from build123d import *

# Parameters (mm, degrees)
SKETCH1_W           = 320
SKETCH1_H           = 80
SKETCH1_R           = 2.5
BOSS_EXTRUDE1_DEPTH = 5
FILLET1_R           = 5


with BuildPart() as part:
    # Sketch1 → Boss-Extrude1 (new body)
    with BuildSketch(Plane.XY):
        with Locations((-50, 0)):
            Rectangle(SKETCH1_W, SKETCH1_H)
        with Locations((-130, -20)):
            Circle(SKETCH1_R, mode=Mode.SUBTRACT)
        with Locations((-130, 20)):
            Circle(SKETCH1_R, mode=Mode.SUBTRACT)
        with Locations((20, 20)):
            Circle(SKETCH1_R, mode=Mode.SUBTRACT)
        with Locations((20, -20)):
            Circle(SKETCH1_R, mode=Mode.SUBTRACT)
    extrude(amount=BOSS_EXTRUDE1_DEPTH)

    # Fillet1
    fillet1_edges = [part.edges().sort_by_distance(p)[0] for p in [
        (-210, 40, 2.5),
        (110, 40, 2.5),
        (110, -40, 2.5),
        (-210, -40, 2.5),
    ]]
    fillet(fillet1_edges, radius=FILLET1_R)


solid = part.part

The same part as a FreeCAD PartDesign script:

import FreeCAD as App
import Part
import Sketcher
from FreeCAD import Vector


def edges_at(feature, points):
    """Names of the edges that pass closest to the given points."""
    edges = feature.Shape.Edges
    near = lambda p: min(range(len(edges)), key=lambda i: edges[i].distToShape(Part.Vertex(*p))[0])
    return sorted({f"Edge{near(p) + 1}" for p in points})


def add_polygon(sketch, points):
    """Adds a closed chain of lines whose ends are joined by coincident constraints."""
    first, n = sketch.GeometryCount, len(points)
    for a, b in zip(points, points[1:] + points[:1]):
        sketch.addGeometry(Part.LineSegment(App.Vector(*a, 0), App.Vector(*b, 0)), False)
    for i in range(n):
        sketch.addConstraint(Sketcher.Constraint("Coincident", first + i, 2, first + (i + 1) % n, 1))

doc = App.newDocument("Part")
params = doc.addObject("Spreadsheet::Sheet", "Params")
for row, (alias, value) in enumerate([
    ("sketch1_diameter", "5 mm"),
    ("sketch1_width", "320 mm"),
    ("sketch1_height", "80 mm"),
    ("pad1_length", "5 mm"),
    ("fillet_radius", "5 mm"),
], start=1):
    params.set(f"A{row}", alias)
    params.set(f"B{row}", "=" + value)
    params.setAlias(f"B{row}", alias)

body = doc.addObject("PartDesign::Body", "Body")

sketch1 = doc.addObject("Sketcher::SketchObject", "Sketch")
body.addObject(sketch1)
sketch1.AttachmentSupport = (doc.XY_Plane, [""])
sketch1.MapMode = "FlatFace"
add_polygon(sketch1, [(-210, 40), (-210, -40), (110, -40), (110, 40)])
sketch1.addGeometry(Part.Circle(Vector(-130, -20, 0), Vector(0, 0, 1), 2.5), False)
sketch1.addGeometry(Part.Circle(Vector(20, -20, 0), Vector(0, 0, 1), 2.5), False)
sketch1.addGeometry(Part.Circle(Vector(-130, 20, 0), Vector(0, 0, 1), 2.5), False)
sketch1.addGeometry(Part.Circle(Vector(20, 20, 0), Vector(0, 0, 1), 2.5), False)
sketch1.addConstraint([
    Sketcher.Constraint("Vertical", 0),
    Sketcher.Constraint("Horizontal", 1),
    Sketcher.Constraint("Vertical", 2),
    Sketcher.Constraint("Horizontal", 3),
    Sketcher.Constraint("Equal", 4, 5),
    Sketcher.Constraint("Equal", 5, 6),
    Sketcher.Constraint("Equal", 6, 7),
    Sketcher.Constraint("Symmetric", 4, 3, 6, 3, -1),
    Sketcher.Constraint("Symmetric", 5, 3, 7, 3, -1),
    Sketcher.Constraint("Horizontal", 4, 3, 5, 3),
    Sketcher.Constraint("Diameter", 4, 5.0),
    Sketcher.Constraint("DistanceX", 1, 1, 1, 2, 320.0),
    Sketcher.Constraint("DistanceY", 0, 2, 0, 1, 80.0),
    Sketcher.Constraint("DistanceX", 4, 3, -1, 1, 130.0),
    Sketcher.Constraint("DistanceY", 4, 3, -1, 1, 20.0),
    Sketcher.Constraint("DistanceX", -1, 1, 5, 3, 20.0),
    Sketcher.Constraint("DistanceX", 0, 2, -1, 1, 210.0),
    Sketcher.Constraint("DistanceY", 0, 2, -1, 1, 40.0),
])
sketch1.setExpression("Constraints[14]", "Params.sketch1_diameter")
sketch1.setExpression("Constraints[15]", "Params.sketch1_width")
sketch1.setExpression("Constraints[16]", "Params.sketch1_height")
pad1 = doc.addObject("PartDesign::Pad", "Pad")
body.addObject(pad1)
pad1.Profile = sketch1
pad1.setExpression("Length", "Params.pad1_length")
doc.recompute()

fillet = doc.addObject("PartDesign::Fillet", "Fillet")
body.addObject(fillet)
fillet.Base = (pad1, edges_at(pad1, [
    (-210, 40, 2.5),
    (110, 40, 2.5),
    (110, -40, 2.5),
    (-210, -40, 2.5),
]))
fillet.setExpression("Radius", "Params.fillet_radius")

doc.recompute()
